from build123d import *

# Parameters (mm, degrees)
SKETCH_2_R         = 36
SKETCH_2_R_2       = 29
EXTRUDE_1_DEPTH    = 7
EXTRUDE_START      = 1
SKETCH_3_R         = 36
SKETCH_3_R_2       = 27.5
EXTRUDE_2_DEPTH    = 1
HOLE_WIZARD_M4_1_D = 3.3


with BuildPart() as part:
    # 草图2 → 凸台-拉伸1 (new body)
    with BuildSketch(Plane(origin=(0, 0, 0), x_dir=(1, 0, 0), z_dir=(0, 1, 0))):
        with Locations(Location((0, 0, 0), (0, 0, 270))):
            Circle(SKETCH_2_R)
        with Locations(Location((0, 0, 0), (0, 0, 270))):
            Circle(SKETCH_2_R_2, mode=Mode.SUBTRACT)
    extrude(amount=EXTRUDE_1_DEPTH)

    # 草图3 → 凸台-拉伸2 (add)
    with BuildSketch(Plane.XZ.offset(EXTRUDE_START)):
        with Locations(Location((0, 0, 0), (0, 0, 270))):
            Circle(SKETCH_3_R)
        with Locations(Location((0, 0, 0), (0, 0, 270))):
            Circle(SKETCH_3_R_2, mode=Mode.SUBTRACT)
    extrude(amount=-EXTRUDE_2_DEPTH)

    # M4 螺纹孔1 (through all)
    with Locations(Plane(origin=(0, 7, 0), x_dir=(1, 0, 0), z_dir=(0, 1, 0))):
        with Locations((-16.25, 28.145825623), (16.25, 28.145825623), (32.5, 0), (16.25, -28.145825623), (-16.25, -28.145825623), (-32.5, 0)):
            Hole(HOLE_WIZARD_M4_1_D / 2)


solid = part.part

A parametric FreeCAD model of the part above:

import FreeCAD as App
import Part
import Sketcher

doc = App.newDocument("Part")
body = doc.addObject("PartDesign::Body", "Body")

# Sketch on XZ plane
sketch1 = body.newObject("Sketcher::SketchObject", "Sketch")
sketch1.AttachmentSupport = (doc.getObject("XZ_Plane"), [""])
sketch1.MapMode = "FlatFace"
sketch1.addGeometry([
    Part.Circle(App.Vector(0, 0, 0), App.Vector(0, 0, 1), 36),
    Part.Circle(App.Vector(0, 0, 0), App.Vector(0, 0, 1), 29),
], False)
sketch1.addConstraint([
    Sketcher.Constraint("Coincident", 0, 3, -1, 1),
    Sketcher.Constraint("Coincident", 1, 3, -1, 1),
    Sketcher.Constraint("Diameter", 0, 72.0),
    Sketcher.Constraint("Diameter", 1, 58.0),
])
pad1 = body.newObject("PartDesign::Pad", "Pad")
pad1.Profile = sketch1
pad1.Length = 7
pad1.Reversed = True

# Sketch on XZ plane
sketch2 = body.newObject("Sketcher::SketchObject", "Sketch001")
sketch2.AttachmentSupport = (doc.getObject("XZ_Plane"), [""])
sketch2.MapMode = "FlatFace"
sketch2.AttachmentOffset = App.Placement(App.Vector(0, 0, 1), App.Rotation())
sketch2.addGeometry([
    Part.Circle(App.Vector(0, 0, 0), App.Vector(0, 0, 1), 36),
    Part.Circle(App.Vector(0, 0, 0), App.Vector(0, 0, 1), 27.5),
], False)
sketch2.addConstraint([
    Sketcher.Constraint("Coincident", 0, 3, -1, 1),
    Sketcher.Constraint("Coincident", 1, 3, -1, 1),
    Sketcher.Constraint("Diameter", 0, 72.0),
    Sketcher.Constraint("Diameter", 1, 55.0),
])
pad2 = body.newObject("PartDesign::Pad", "Pad001")
pad2.Profile = sketch2
pad2.Length = 1
pad2.Reversed = True

# Sketch on XZ plane
sketch3 = body.newObject("Sketcher::SketchObject", "Sketch002")
sketch3.AttachmentSupport = (doc.getObject("XZ_Plane"), [""])
sketch3.MapMode = "FlatFace"
sketch3.AttachmentOffset = App.Placement(App.Vector(0, 0, -7), App.Rotation())
sketch3.addGeometry([
    Part.Circle(App.Vector(-16.25, -28.145826, 0), App.Vector(0, 0, 1), 1.65),  # 0
    Part.Circle(App.Vector(16.25, -28.145826, 0), App.Vector(0, 0, 1), 1.65),  # 1
    Part.Circle(App.Vector(32.5, 0, 0), App.Vector(0, 0, 1), 1.65),  # 2
    Part.Circle(App.Vector(16.25, 28.145826, 0), App.Vector(0, 0, 1), 1.65),  # 3
    Part.Circle(App.Vector(-16.25, 28.145826, 0), App.Vector(0, 0, 1), 1.65),  # 4
    Part.Circle(App.Vector(-32.5, 0, 0), App.Vector(0, 0, 1), 1.65),  # 5
], False)
sketch3.addConstraint([
    Sketcher.Constraint("Equal", 0, 1),
    Sketcher.Constraint("Equal", 1, 2),
    Sketcher.Constraint("Equal", 2, 3),
    Sketcher.Constraint("Equal", 3, 4),
    Sketcher.Constraint("Equal", 4, 5),
    Sketcher.Constraint("Symmetric", 0, 3, 3, 3, -1, 1),
    Sketcher.Constraint("Symmetric", 1, 3, 4, 3, -1, 1),
    Sketcher.Constraint("Symmetric", 2, 3, 5, 3, -1, 1),
    Sketcher.Constraint("Symmetric", 0, 3, 1, 3, -2),
    Sketcher.Constraint("PointOnObject", 2, 3, -1),
    Sketcher.Constraint("Diameter", 0, 3.3),
    Sketcher.Constraint("DistanceX", 5, 3, 2, 3, 65.0),
    Sketcher.Constraint("DistanceX", 0, 3, 1, 3, 32.5),
    Sketcher.Constraint("DistanceY", 1, 3, 3, 3, 56.291651),
])
doc.recompute()
hole = body.newObject("PartDesign::Hole", "Hole")
hole.Profile = sketch3
hole.ThreadType = "None"
hole.Diameter = 3.3
hole.DepthType = "ThroughAll"
hole.Reversed = True

doc.recompute()
